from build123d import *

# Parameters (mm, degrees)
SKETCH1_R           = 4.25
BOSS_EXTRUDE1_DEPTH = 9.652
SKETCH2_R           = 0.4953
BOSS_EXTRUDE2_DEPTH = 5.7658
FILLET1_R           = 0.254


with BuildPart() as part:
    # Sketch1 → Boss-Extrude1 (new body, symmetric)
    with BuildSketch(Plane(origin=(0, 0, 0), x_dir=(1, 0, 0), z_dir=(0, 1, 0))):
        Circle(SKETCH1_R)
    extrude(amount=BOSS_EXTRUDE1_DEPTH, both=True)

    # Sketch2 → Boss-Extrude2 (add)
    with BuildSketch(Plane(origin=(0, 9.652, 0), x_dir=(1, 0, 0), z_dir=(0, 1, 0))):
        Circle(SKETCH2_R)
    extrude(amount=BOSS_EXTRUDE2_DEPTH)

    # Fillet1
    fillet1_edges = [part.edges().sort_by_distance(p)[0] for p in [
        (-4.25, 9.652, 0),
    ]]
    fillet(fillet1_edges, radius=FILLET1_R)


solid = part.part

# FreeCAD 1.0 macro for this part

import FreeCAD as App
import Part
import Sketcher
from FreeCAD import Vector
Q = App.Units.Quantity


def edges_at(feature, points):
    """Names of the edges that pass closest to the given points."""
    edges = feature.Shape.Edges
    near = lambda p: min(range(len(edges)), key=lambda i: edges[i].distToShape(Part.Vertex(*p))[0])
    return sorted({f"Edge{near(p) + 1}" for p in points})

doc = App.newDocument("Part")
params = doc.addObject("Spreadsheet::Sheet", "Params")
for row, (alias, value) in enumerate([
    ("pad1_length", "0.76 in"),
    ("sketch2_diameter", "0.039 in"),
    ("pad2_length", "0.227 in"),
    ("fillet_radius", "0.01 in"),
], start=1):
    params.set(f"A{row}", alias)
    params.set(f"B{row}", "=" + value)
    params.setAlias(f"B{row}", alias)

body = doc.addObject("PartDesign::Body", "Body")

# Sketch on XZ plane
sketch1 = doc.addObject("Sketcher::SketchObject", "Sketch")
body.addObject(sketch1)
sketch1.AttachmentSupport = (doc.XZ_Plane, [""])
sketch1.MapMode = "FlatFace"
sketch1.addGeometry(Part.Circle(Vector(0, 0, 0), Vector(0, 0, 1), 4.25), False)
sketch1.addConstraint([
    Sketcher.Constraint("Coincident", 0, 3, -1, 1),
    Sketcher.Constraint("Diameter", 0, Q("8.5 mm")),
])
pad1 = doc.addObject("PartDesign::Pad", "Pad")
body.addObject(pad1)
pad1.Profile = sketch1
pad1.setExpression("Length", "Params.pad1_length")
pad1.Midplane = True

# Sketch on XZ plane
sketch2 = doc.addObject("Sketcher::SketchObject", "Sketch001")
body.addObject(sketch2)
sketch2.AttachmentSupport = (doc.XZ_Plane, [""])
sketch2.MapMode = "FlatFace"
sketch2.AttachmentOffset = App.Placement(Vector(0, 0, -0.38 * 25.4), App.Rotation())
sketch2.addGeometry(Part.Circle(Vector(0, 0, 0), Vector(0, 0, 1), 0.4953), False)
sketch2.addConstraint([
    Sketcher.Constraint("Coincident", 0, 3, -1, 1),
    Sketcher.Constraint("Diameter", 0, Q("0.039 in")),
])
sketch2.setExpression("Constraints[1]", "Params.sketch2_diameter")
pad2 = doc.addObject("PartDesign::Pad", "Pad001")
body.addObject(pad2)
pad2.Profile = sketch2
pad2.setExpression("Length", "Params.pad2_length")
pad2.Reversed = True
doc.recompute()

fillet = doc.addObject("PartDesign::Fillet", "Fillet")
body.addObject(fillet)
fillet.Base = (pad2, edges_at(pad2, [(-4.25, 9.652, 0)]))
fillet.setExpression("Radius", "Params.fillet_radius")

doc.recompute()
